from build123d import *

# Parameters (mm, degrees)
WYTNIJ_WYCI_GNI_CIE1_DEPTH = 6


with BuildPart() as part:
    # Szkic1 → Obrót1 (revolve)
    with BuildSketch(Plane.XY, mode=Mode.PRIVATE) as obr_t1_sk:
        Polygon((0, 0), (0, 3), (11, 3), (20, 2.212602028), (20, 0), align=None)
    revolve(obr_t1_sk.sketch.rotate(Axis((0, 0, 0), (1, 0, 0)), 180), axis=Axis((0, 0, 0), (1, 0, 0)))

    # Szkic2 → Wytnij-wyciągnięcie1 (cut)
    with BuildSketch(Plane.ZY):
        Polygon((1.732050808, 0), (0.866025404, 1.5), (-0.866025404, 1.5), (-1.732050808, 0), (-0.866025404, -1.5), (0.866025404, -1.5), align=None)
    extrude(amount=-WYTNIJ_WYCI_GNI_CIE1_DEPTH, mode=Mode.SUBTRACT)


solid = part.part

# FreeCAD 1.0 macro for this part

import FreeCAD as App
import Part
import Sketcher
from FreeCAD import Vector
Q = App.Units.Quantity

doc = App.newDocument("Part")
params = doc.addObject("Spreadsheet::Sheet", "Params")
for row, (alias, value) in enumerate([
    ("sketch1_width", "20 mm"),
    ("sketch1_width2", "11 mm"),
    ("sketch1_height", "3 mm"),
    ("revolution_angle", "360 deg"),
    ("pocket1_length", "6 mm"),
], start=1):
    params.set(f"A{row}", alias)
    params.set(f"B{row}", "=" + value)
    params.setAlias(f"B{row}", alias)

body = doc.addObject("PartDesign::Body", "Body")

# Sketch on XY plane
sketch1 = body.newObject("Sketcher::SketchObject", "Sketch")
sketch1.AttachmentSupport = (doc.getObject("XY_Plane"), [""])
sketch1.MapMode = "FlatFace"
sketch1.addGeometry([
    Part.LineSegment(Vector(0, 3, 0), Vector(0, 0, 0)),  # 0
    Part.LineSegment(Vector(0, 0, 0), Vector(20, 0, 0)),  # 1
    Part.LineSegment(Vector(20, 0, 0), Vector(20, 2.2, 0)),  # 2
    Part.LineSegment(Vector(20, 2.2, 0), Vector(11, 3, 0)),  # 3
    Part.LineSegment(Vector(11, 3, 0), Vector(0, 3, 0)),  # 4
], False)
sketch1.addConstraint([
    Sketcher.Constraint("Coincident", 0, 2, 1, 1),
    Sketcher.Constraint("Coincident", 1, 2, 2, 1),
    Sketcher.Constraint("Coincident", 2, 2, 3, 1),
    Sketcher.Constraint("Coincident", 3, 2, 4, 1),
    Sketcher.Constraint("Coincident", 4, 2, 0, 1),
    Sketcher.Constraint("Vertical", 0),
    Sketcher.Constraint("Horizontal", 1),
    Sketcher.Constraint("Vertical", 2),
    Sketcher.Constraint("Horizontal", 4),
    Sketcher.Constraint("Coincident", 0, 2, -1, 1),
    Sketcher.Constraint("DistanceX", 1, 1, 1, 2, 20.0),
    Sketcher.Constraint("DistanceX", 4, 2, 4, 1, 11.0),
    Sketcher.Constraint("DistanceY", 0, 2, 0, 1, 3.0),
    Sketcher.Constraint("Angle", 3, Q("175 deg")),
])
sketch1.setExpression("Constraints[10]", "Params.sketch1_width")
sketch1.setExpression("Constraints[11]", "Params.sketch1_width2")
sketch1.setExpression("Constraints[12]", "Params.sketch1_height")
revolution = body.newObject("PartDesign::Revolution", "Revolution")
revolution.Profile = sketch1
revolution.ReferenceAxis = (sketch1, ["H_Axis"])
revolution.setExpression("Angle", "Params.revolution_angle")

# Sketch on YZ plane
sketch2 = body.newObject("Sketcher::SketchObject", "Sketch001")
sketch2.AttachmentSupport = (doc.getObject("YZ_Plane"), [""])
sketch2.MapMode = "FlatFace"
sketch2.addGeometry([
    Part.LineSegment(Vector(0, 1.7, 0), Vector(1.5, 0.9, 0)),  # 0
    Part.LineSegment(Vector(1.5, 0.9, 0), Vector(1.5, -0.9, 0)),  # 1
    Part.LineSegment(Vector(1.5, -0.9, 0), Vector(0, -1.7, 0)),  # 2
    Part.LineSegment(Vector(0, -1.7, 0), Vector(-1.5, -0.9, 0)),  # 3
    Part.LineSegment(Vector(-1.5, -0.9, 0), Vector(-1.5, 0.9, 0)),  # 4
    Part.LineSegment(Vector(-1.5, 0.9, 0), Vector(0, 1.7, 0)),  # 5
], False)
sketch2.addConstraint([
    Sketcher.Constraint("Coincident", 0, 2, 1, 1),
    Sketcher.Constraint("Coincident", 1, 2, 2, 1),
    Sketcher.Constraint("Coincident", 2, 2, 3, 1),
    Sketcher.Constraint("Coincident", 3, 2, 4, 1),
    Sketcher.Constraint("Coincident", 4, 2, 5, 1),
    Sketcher.Constraint("Coincident", 5, 2, 0, 1),
    Sketcher.Constraint("Vertical", 1),
    Sketcher.Constraint("Vertical", 4),
    Sketcher.Constraint("Symmetric", 0, 2, 3, 2, -1, 1),
    Sketcher.Constraint("Symmetric", 2, 2, 5, 2, -1, 1),
    Sketcher.Constraint("PointOnObject", 2, 2, -2),
    Sketcher.Constraint("Parallel", 2, 5),
    Sketcher.Constraint("Horizontal", 1, 2, 3, 2),
    Sketcher.Constraint("Angle", 0, Q("-30 deg")),
    Sketcher.Constraint("DistanceX", 3, 2, 1, 2, 3.0),
    Sketcher.Constraint("DistanceY", 1, 2, 1, 1, 1.732051),
])
pocket1 = body.newObject("PartDesign::Pocket", "Pocket")
pocket1.Profile = sketch2
pocket1.setExpression("Length", "Params.pocket1_length")
pocket1.Reversed = True

doc.recompute()
